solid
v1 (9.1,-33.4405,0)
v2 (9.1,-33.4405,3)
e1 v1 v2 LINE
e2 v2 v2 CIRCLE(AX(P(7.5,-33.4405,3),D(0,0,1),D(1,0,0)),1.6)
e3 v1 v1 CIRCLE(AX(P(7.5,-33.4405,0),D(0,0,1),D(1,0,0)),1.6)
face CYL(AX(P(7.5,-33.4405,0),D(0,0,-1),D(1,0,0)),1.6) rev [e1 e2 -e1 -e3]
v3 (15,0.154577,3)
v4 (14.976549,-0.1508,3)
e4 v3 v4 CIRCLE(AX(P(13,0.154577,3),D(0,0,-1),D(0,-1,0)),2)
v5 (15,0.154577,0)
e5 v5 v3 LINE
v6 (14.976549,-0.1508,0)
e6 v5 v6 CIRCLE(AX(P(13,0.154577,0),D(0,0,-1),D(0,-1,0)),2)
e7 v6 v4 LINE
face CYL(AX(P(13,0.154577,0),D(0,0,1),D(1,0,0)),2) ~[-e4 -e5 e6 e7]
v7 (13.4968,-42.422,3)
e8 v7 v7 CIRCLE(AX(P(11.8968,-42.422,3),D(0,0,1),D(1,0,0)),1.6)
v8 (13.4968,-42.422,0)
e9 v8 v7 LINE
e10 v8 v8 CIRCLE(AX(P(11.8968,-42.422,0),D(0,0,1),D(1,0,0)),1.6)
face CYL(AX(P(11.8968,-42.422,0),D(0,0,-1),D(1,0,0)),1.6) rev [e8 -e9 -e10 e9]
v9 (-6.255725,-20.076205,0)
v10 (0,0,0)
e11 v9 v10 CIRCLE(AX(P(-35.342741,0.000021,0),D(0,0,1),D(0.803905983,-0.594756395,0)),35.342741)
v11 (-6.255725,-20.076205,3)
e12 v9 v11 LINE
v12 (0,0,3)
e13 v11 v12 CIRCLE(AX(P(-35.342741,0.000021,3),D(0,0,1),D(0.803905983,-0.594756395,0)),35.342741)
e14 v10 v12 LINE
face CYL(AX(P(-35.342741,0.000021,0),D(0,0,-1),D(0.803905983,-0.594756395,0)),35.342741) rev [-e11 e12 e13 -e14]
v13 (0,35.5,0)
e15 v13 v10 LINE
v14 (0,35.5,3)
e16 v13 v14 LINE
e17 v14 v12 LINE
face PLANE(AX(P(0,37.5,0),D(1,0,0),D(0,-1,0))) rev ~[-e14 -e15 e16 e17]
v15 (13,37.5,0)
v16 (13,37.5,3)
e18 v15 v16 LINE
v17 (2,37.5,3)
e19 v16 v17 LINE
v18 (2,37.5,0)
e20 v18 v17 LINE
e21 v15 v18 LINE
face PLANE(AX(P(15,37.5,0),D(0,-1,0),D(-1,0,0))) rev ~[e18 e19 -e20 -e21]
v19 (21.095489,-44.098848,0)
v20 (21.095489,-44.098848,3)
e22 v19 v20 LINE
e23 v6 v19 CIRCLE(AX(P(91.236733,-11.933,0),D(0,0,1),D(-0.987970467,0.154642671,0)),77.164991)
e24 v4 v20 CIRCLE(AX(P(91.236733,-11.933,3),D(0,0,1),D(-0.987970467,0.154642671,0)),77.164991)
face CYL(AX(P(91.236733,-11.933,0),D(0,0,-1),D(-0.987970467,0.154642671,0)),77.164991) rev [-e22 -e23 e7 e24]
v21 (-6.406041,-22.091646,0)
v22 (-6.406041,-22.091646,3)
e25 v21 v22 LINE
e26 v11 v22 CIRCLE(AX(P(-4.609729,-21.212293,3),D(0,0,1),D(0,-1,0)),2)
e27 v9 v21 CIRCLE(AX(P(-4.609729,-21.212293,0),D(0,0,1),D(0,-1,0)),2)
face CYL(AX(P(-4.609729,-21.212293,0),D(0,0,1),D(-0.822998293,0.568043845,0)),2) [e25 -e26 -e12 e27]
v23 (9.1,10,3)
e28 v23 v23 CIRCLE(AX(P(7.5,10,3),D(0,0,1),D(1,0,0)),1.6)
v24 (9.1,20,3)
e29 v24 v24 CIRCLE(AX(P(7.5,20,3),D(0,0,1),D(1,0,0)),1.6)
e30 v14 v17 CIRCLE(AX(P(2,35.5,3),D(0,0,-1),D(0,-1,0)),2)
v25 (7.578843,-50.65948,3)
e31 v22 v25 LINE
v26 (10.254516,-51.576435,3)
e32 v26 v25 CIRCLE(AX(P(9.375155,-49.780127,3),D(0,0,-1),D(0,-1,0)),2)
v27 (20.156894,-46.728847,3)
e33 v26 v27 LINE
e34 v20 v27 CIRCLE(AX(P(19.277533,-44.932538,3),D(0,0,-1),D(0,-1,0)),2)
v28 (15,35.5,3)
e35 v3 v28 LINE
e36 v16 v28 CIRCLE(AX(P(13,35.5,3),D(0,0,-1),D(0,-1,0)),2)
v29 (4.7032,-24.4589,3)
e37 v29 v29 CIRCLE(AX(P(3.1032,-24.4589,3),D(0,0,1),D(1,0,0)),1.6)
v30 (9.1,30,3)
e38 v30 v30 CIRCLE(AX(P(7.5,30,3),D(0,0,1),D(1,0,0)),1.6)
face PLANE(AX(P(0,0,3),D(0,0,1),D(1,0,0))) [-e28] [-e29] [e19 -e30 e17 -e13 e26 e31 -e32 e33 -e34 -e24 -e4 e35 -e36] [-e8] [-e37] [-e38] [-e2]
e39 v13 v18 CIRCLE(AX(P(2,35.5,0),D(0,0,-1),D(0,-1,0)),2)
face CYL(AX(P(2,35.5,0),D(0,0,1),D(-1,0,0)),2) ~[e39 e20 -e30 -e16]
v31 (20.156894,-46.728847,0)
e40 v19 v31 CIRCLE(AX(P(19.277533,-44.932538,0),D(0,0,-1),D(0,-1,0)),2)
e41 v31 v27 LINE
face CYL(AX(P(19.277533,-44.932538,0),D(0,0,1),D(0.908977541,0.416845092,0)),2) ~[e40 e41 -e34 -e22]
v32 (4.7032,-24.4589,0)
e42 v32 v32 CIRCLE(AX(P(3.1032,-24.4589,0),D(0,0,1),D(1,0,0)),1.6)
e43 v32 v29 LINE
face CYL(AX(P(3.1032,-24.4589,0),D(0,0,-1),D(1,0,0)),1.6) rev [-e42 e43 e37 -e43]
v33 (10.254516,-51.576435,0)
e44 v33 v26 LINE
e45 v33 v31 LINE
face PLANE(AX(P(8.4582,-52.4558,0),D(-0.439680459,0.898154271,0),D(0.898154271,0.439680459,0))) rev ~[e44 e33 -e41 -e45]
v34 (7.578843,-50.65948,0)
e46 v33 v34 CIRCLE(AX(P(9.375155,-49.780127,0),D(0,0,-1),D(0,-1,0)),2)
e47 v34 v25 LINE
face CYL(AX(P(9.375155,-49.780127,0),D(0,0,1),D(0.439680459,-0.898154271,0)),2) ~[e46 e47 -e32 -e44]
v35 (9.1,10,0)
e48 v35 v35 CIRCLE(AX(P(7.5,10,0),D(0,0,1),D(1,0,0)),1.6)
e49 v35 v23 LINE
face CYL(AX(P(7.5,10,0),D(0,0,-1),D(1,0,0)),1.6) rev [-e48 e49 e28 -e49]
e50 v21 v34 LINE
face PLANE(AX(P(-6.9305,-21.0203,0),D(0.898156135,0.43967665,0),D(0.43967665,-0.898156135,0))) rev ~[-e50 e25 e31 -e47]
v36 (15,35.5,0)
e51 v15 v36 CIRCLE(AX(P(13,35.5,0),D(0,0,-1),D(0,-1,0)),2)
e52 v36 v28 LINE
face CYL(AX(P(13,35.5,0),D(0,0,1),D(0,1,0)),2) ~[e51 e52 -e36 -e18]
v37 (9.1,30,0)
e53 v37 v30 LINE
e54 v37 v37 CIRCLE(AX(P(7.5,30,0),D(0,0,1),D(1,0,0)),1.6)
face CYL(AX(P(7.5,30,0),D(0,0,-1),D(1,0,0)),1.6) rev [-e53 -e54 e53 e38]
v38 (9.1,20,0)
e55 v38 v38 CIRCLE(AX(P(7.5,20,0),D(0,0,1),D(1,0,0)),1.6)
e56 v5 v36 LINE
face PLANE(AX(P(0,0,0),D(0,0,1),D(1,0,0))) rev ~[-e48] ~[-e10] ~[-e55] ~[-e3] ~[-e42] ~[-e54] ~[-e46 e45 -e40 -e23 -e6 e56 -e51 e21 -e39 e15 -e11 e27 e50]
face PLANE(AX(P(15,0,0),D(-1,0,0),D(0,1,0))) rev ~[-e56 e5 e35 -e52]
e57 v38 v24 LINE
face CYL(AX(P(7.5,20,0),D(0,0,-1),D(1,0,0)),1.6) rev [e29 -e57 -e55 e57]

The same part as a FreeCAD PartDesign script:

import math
import FreeCAD as App
import Part
import Sketcher
from FreeCAD import Vector


def edges_at(feature, points):
    """Names of the edges that pass closest to the given points."""
    edges = feature.Shape.Edges
    near = lambda p: min(range(len(edges)), key=lambda i: edges[i].distToShape(Part.Vertex(*p))[0])
    return sorted({f"Edge{near(p) + 1}" for p in points})

doc = App.newDocument("Part")
body = doc.addObject("PartDesign::Body", "Body")

# Sketch on XY plane
sketch1 = body.newObject("Sketcher::SketchObject", "Sketch")
sketch1.AttachmentSupport = (doc.getObject("XY_Plane"), [""])
sketch1.MapMode = "FlatFace"
sketch1.addGeometry([
    Part.ArcOfCircle(Part.Circle(Vector(-35.3, 0, 0), Vector(0, 0, 1), 35.3), math.radians(-36), math.radians(0)),  # 0
    Part.LineSegment(Vector(-6.9, -21, 0), Vector(8.5, -52.5, 0)),  # 1
    Part.LineSegment(Vector(8.5, -52.5, 0), Vector(21.9, -45.9, 0)),  # 2
    Part.ArcOfCircle(Part.Circle(Vector(91.2, -11.9, 0), Vector(0, 0, 1), 77.2), math.radians(171), math.radians(206)),  # 3
    Part.LineSegment(Vector(15, 0, 0), Vector(15, 37.5, 0)),  # 4
    Part.LineSegment(Vector(15, 37.5, 0), Vector(0, 37.5, 0)),  # 5
    Part.LineSegment(Vector(0, 37.5, 0), Vector(0, 0, 0)),  # 6
    Part.Circle(Vector(3.1, -24.5, 0), Vector(0, 0, 1), 1.6),  # 7
    Part.Circle(Vector(11.9, -42.4, 0), Vector(0, 0, 1), 1.6),  # 8
    Part.Circle(Vector(7.5, -33.4, 0), Vector(0, 0, 1), 1.6),  # 9
    Part.Circle(Vector(7.5, 10, 0), Vector(0, 0, 1), 1.6),  # 10
    Part.Circle(Vector(7.5, 20, 0), Vector(0, 0, 1), 1.6),  # 11
    Part.Circle(Vector(7.5, 30, 0), Vector(0, 0, 1), 1.6),  # 12
], False)
sketch1.addConstraint([
    Sketcher.Constraint("Coincident", 0, 1, 1, 1),
    Sketcher.Constraint("Coincident", 1, 2, 2, 1),
    Sketcher.Constraint("Coincident", 2, 2, 3, 2),
    Sketcher.Constraint("Coincident", 3, 1, 4, 1),
    Sketcher.Constraint("Coincident", 4, 2, 5, 1),
    Sketcher.Constraint("Coincident", 5, 2, 6, 1),
    Sketcher.Constraint("Tangent", 6, 2, 0, 2),
    Sketcher.Constraint("Vertical", 4),
    Sketcher.Constraint("Horizontal", 5),
    Sketcher.Constraint("Vertical", 6),
    Sketcher.Constraint("Coincident", 6, 2, -1, 1),
    Sketcher.Constraint("Equal", 7, 8),
    Sketcher.Constraint("Equal", 8, 9),
    Sketcher.Constraint("Equal", 9, 10),
    Sketcher.Constraint("Equal", 10, 11),
    Sketcher.Constraint("Equal", 11, 12),
    Sketcher.Constraint("PointOnObject", 3, 1, -1),
    Sketcher.Constraint("Perpendicular", 1, 2),
    Sketcher.Constraint("Vertical", 9, 3, 10, 3),
    Sketcher.Constraint("Vertical", 10, 3, 11, 3),
    Sketcher.Constraint("Vertical", 11, 3, 12, 3),
    Sketcher.Constraint("Diameter", 7, 3.2),
    Sketcher.Constraint("DistanceX", -1, 1, 9, 3, 7.5),
    Sketcher.Constraint("DistanceX", 10, 3, 3, 1, 7.5),
    Sketcher.Constraint("DistanceY", 12, 3, 4, 2, 7.5),
    Sketcher.Constraint("Distance", 1, 35.0),
    Sketcher.Constraint("Distance", 2, 15.0),
    Sketcher.Constraint("DistanceY", 4, 1, 4, 2, 37.5),
    Sketcher.Constraint("DistanceY", -1, 1, 10, 3, 10.0),
    Sketcher.Constraint("DistanceY", -1, 1, 11, 3, 20.0),
    Sketcher.Constraint("Radius", 0, 35.3427),
    Sketcher.Constraint("Radius", 3, 77.1649),
    Sketcher.Constraint("DistanceY", 2, 2, 9, 3, 12.42),
    Sketcher.Constraint("DistanceY", 3, 3, -1, 1, 11.933),
    Sketcher.Constraint("DistanceY", 7, 3, -1, 1, 24.459),
    Sketcher.Constraint("DistanceY", 8, 3, -1, 1, 42.422),
    Sketcher.Constraint("DistanceX", 0, 3, 7, 3, 38.446),
    Sketcher.Constraint("DistanceX", 7, 3, 1, 2, 5.355),
    Sketcher.Constraint("DistanceX", -1, 1, 8, 3, 11.8968),
])
pad1 = body.newObject("PartDesign::Pad", "Pad")
pad1.Profile = sketch1
pad1.Length = 3
doc.recompute()

fillet = body.newObject("PartDesign::Fillet", "Fillet")
fillet.Base = (pad1, edges_at(pad1, [
    (21.93, -45.861, 1.5),
    (8.458, -52.456, 1.5),
    (-6.931, -21.02, 1.5),
    (0, 37.5, 1.5),
    (15, 37.5, 1.5),
    (15, 0, 1.5),
]))
fillet.Radius = 2

doc.recompute()
